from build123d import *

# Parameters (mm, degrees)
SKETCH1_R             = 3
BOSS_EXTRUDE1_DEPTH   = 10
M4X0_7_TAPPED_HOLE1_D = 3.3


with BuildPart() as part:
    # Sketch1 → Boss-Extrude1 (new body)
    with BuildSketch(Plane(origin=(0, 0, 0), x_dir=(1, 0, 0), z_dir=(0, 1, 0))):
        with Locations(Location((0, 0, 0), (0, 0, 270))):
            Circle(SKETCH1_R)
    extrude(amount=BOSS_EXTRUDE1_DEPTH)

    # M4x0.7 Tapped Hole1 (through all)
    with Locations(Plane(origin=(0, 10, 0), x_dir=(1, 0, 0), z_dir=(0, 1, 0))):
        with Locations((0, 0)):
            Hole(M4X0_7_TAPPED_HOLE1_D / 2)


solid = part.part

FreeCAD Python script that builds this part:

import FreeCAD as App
import Part
import Sketcher

doc = App.newDocument("Part")
params = doc.addObject("Spreadsheet::Sheet", "Params")
for row, (alias, value) in enumerate([
    ("sketch1_diameter", "6 mm"),
    ("pad1_length", "10 mm"),
    ("sketch2_diameter", "3.3 mm"),
    ("hole_diameter", "3.3 mm"),
], start=1):
    params.set(f"A{row}", alias)
    params.set(f"B{row}", "=" + value)
    params.setAlias(f"B{row}", alias)

body = doc.addObject("PartDesign::Body", "Body")

# Sketch on XZ plane
sketch1 = doc.addObject("Sketcher::SketchObject", "Sketch")
body.addObject(sketch1)
sketch1.AttachmentSupport = (doc.XZ_Plane, [""])
sketch1.MapMode = "FlatFace"
sketch1.addGeometry(Part.Circle(App.Vector(0, 0, 0), App.Vector(0, 0, 1), 3), False)
sketch1.addConstraint([
    Sketcher.Constraint("Coincident", 0, 3, -1, 1),
    Sketcher.Constraint("Diameter", 0, 6.0),
])
sketch1.setExpression("Constraints[1]", "Params.sketch1_diameter")
pad1 = doc.addObject("PartDesign::Pad", "Pad")
body.addObject(pad1)
pad1.Profile = sketch1
pad1.setExpression("Length", "Params.pad1_length")
pad1.Reversed = True

# Sketch on XZ plane
sketch2 = doc.addObject("Sketcher::SketchObject", "Sketch001")
body.addObject(sketch2)
sketch2.AttachmentSupport = (doc.XZ_Plane, [""])
sketch2.MapMode = "FlatFace"
sketch2.AttachmentOffset = App.Placement(App.Vector(0, 0, -10), App.Rotation())
sketch2.addGeometry(Part.Circle(App.Vector(0, 0, 0), App.Vector(0, 0, 1), 1.6), False)
sketch2.addConstraint([
    Sketcher.Constraint("Coincident", 0, 3, -1, 1),
    Sketcher.Constraint("Diameter", 0, 3.3),
])
sketch2.setExpression("Constraints[1]", "Params.sketch2_diameter")
doc.recompute()
hole = doc.addObject("PartDesign::Hole", "Hole")
body.addObject(hole)
hole.Profile = sketch2
hole.ThreadType = "None"
hole.setExpression("Diameter", "Params.hole_diameter")
hole.DepthType = "ThroughAll"
hole.Reversed = True

doc.recompute()
